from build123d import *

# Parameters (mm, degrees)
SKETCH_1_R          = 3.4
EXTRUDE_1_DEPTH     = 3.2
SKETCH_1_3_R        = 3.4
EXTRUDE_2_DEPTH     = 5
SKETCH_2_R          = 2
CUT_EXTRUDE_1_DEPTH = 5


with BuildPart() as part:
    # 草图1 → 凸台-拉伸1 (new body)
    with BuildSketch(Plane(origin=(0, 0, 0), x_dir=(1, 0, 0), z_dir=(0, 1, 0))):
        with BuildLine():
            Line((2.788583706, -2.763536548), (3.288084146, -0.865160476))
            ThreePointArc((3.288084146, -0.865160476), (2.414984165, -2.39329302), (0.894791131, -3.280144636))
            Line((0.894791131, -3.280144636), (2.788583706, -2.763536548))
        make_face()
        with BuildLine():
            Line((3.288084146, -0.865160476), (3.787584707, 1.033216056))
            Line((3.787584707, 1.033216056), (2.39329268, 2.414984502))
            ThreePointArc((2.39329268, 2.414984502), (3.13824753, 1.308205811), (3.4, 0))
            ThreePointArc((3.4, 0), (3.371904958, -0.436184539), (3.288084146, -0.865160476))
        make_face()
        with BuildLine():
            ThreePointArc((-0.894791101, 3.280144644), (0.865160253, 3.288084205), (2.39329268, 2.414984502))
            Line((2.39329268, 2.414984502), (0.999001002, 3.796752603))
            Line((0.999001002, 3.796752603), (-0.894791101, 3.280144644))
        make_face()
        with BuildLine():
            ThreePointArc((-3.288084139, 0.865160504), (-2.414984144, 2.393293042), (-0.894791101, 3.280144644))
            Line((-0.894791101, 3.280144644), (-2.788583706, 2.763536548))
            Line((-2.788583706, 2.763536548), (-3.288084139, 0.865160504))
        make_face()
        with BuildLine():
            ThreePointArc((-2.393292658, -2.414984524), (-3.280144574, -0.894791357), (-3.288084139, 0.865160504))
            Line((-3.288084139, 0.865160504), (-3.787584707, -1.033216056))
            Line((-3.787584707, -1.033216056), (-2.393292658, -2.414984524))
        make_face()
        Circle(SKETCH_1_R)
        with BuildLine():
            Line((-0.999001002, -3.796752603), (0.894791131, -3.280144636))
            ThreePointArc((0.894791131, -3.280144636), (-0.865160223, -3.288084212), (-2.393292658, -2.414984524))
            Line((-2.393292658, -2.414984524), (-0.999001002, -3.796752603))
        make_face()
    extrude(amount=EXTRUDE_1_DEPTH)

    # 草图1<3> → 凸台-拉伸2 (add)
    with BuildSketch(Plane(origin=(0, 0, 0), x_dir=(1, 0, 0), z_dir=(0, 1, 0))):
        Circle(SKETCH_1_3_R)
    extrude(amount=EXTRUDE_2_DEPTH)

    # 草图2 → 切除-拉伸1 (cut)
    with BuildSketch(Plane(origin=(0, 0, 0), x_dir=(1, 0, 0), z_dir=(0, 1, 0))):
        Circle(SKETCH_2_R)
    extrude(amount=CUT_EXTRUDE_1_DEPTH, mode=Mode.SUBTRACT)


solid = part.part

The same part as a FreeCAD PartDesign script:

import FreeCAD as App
import Part
import Sketcher
from FreeCAD import Vector
Q = App.Units.Quantity

doc = App.newDocument("Part")
body = doc.addObject("PartDesign::Body", "Body")

sketch1 = body.newObject("Sketcher::SketchObject", "Sketch")
sketch1.AttachmentSupport = (doc.getObject("XZ_Plane"), [""])
sketch1.MapMode = "FlatFace"
sketch1.addGeometry([
    Part.LineSegment(Vector(2.8, 2.8, 0), Vector(3.3, 0.9, 0)),
    Part.LineSegment(Vector(3.3, 0.9, 0), Vector(3.8, -1, 0)),
    Part.LineSegment(Vector(3.8, -1, 0), Vector(2.4, -2.4, 0)),
    Part.LineSegment(Vector(2.4, -2.4, 0), Vector(1, -3.8, 0)),
    Part.LineSegment(Vector(1, -3.8, 0), Vector(-0.9, -3.3, 0)),
    Part.LineSegment(Vector(-0.9, -3.3, 0), Vector(-2.8, -2.8, 0)),
    Part.LineSegment(Vector(-2.8, -2.8, 0), Vector(-3.3, -0.9, 0)),
    Part.LineSegment(Vector(-3.3, -0.9, 0), Vector(-3.8, 1, 0)),
    Part.LineSegment(Vector(-3.8, 1, 0), Vector(-2.4, 2.4, 0)),
    Part.LineSegment(Vector(-2.4, 2.4, 0), Vector(-1, 3.8, 0)),
    Part.LineSegment(Vector(-1, 3.8, 0), Vector(0.9, 3.3, 0)),
    Part.LineSegment(Vector(0.9, 3.3, 0), Vector(2.8, 2.8, 0)),
], False)
sketch1.addConstraint([
    Sketcher.Constraint("Coincident", 0, 2, 1, 1),
    Sketcher.Constraint("Coincident", 1, 2, 2, 1),
    Sketcher.Constraint("Coincident", 2, 2, 3, 1),
    Sketcher.Constraint("Coincident", 3, 2, 4, 1),
    Sketcher.Constraint("Coincident", 4, 2, 5, 1),
    Sketcher.Constraint("Coincident", 5, 2, 6, 1),
    Sketcher.Constraint("Coincident", 6, 2, 7, 1),
    Sketcher.Constraint("Coincident", 7, 2, 8, 1),
    Sketcher.Constraint("Coincident", 8, 2, 9, 1),
    Sketcher.Constraint("Coincident", 9, 2, 10, 1),
    Sketcher.Constraint("Coincident", 10, 2, 11, 1),
    Sketcher.Constraint("Coincident", 11, 2, 0, 1),
    Sketcher.Constraint("Symmetric", 0, 2, 6, 2, -1, 1),
    Sketcher.Constraint("Symmetric", 1, 2, 7, 2, -1, 1),
    Sketcher.Constraint("Symmetric", 2, 2, 8, 2, -1, 1),
    Sketcher.Constraint("Symmetric", 3, 2, 9, 2, -1, 1),
    Sketcher.Constraint("Symmetric", 4, 2, 10, 2, -1, 1),
    Sketcher.Constraint("Symmetric", 5, 2, 11, 2, -1, 1),
    Sketcher.Constraint("Parallel", 0, 1),
    Sketcher.Constraint("Parallel", 2, 3),
    Sketcher.Constraint("Parallel", 4, 5),
    Sketcher.Constraint("Equal", 0, 1),
    Sketcher.Constraint("Equal", 1, 2),
    Sketcher.Constraint("Equal", 2, 3),
    Sketcher.Constraint("Equal", 3, 4),
    Sketcher.Constraint("Equal", 4, 5),
    Sketcher.Constraint("DistanceX", -1, 1, 3, 2, Q("0.999001 mm")),
    Sketcher.Constraint("DistanceX", 7, 2, 5, 2, Q("0.999001 mm")),
    Sketcher.Constraint("DistanceY", 2, 2, 7, 2, Q("3.448201 mm")),
    Sketcher.Constraint("Distance", 0, Q("1.962991 mm")),
])
pad1 = body.newObject("PartDesign::Pad", "Pad")
pad1.Profile = sketch1
pad1.Length = 3.2
pad1.Reversed = True

sketch2 = body.newObject("Sketcher::SketchObject", "Sketch001")
sketch2.AttachmentSupport = (doc.getObject("XZ_Plane"), [""])
sketch2.MapMode = "FlatFace"
sketch2.addGeometry(Part.Circle(Vector(0, 0, 0), Vector(0, 0, 1), 3.4), False)
sketch2.addConstraint([
    Sketcher.Constraint("Coincident", 0, 3, -1, 1),
    Sketcher.Constraint("Diameter", 0, Q("6.8 mm")),
])
pad2 = body.newObject("PartDesign::Pad", "Pad001")
pad2.Profile = sketch2
pad2.Length = 5
pad2.Reversed = True

sketch3 = body.newObject("Sketcher::SketchObject", "Sketch002")
sketch3.AttachmentSupport = (doc.getObject("XZ_Plane"), [""])
sketch3.MapMode = "FlatFace"
sketch3.addGeometry(Part.Circle(Vector(0, 0, 0), Vector(0, 0, 1), 2), False)
sketch3.addConstraint([
    Sketcher.Constraint("Coincident", 0, 3, -1, 1),
    Sketcher.Constraint("Diameter", 0, Q("4 mm")),
])
pocket1 = body.newObject("PartDesign::Pocket", "Pocket")
pocket1.Profile = sketch3
pocket1.Length = 5

doc.recompute()
